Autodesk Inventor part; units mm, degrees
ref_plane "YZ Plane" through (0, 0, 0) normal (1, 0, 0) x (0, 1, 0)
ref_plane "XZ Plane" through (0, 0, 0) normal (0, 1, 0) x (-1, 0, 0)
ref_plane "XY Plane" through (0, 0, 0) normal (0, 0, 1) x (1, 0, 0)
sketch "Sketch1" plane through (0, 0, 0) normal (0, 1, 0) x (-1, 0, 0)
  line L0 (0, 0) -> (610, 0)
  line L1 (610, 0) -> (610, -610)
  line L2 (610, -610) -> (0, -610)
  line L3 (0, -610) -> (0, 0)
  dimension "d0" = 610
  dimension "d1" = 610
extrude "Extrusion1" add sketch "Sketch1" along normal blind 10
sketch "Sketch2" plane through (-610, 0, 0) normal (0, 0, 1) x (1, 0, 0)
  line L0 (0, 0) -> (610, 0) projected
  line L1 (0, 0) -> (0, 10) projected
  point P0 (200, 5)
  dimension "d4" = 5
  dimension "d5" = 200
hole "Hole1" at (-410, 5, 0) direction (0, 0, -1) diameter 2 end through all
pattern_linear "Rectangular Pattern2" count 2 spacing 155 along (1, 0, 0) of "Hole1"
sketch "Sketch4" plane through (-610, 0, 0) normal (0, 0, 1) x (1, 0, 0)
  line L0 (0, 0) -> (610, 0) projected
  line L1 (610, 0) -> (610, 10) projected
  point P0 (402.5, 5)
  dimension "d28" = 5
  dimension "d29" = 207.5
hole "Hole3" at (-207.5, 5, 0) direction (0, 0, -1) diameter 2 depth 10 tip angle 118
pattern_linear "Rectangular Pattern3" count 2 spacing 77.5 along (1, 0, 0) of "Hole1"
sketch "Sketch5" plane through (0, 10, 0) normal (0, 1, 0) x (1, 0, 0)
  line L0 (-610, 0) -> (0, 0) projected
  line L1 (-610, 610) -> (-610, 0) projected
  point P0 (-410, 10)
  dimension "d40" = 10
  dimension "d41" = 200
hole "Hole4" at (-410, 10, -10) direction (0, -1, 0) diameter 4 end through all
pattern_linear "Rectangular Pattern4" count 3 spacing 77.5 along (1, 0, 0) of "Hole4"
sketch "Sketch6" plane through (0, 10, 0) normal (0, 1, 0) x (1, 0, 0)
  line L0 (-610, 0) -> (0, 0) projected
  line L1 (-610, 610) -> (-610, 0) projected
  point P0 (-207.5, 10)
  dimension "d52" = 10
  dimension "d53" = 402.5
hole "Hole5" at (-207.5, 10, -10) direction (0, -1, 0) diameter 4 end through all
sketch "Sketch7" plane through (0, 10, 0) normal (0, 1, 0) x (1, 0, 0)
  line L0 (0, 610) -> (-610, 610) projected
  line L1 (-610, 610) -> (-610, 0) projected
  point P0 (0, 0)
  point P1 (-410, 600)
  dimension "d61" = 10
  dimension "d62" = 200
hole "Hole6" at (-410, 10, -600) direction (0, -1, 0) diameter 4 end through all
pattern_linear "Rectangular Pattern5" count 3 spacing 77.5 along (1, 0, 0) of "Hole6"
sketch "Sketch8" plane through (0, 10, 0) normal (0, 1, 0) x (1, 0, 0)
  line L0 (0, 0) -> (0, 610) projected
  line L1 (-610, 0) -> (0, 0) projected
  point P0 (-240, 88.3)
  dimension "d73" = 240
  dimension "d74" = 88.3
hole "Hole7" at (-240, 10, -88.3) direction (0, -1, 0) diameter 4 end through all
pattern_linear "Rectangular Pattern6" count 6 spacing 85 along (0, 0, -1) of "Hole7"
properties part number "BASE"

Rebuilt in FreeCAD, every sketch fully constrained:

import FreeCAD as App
import Part
import Sketcher
Q = App.Units.Quantity


def add_polygon(sketch, points):
    """Adds a closed chain of lines whose ends are joined by coincident constraints."""
    first, n = sketch.GeometryCount, len(points)
    for a, b in zip(points, points[1:] + points[:1]):
        sketch.addGeometry(Part.LineSegment(App.Vector(*a, 0), App.Vector(*b, 0)), False)
    for i in range(n):
        sketch.addConstraint(Sketcher.Constraint("Coincident", first + i, 2, first + (i + 1) % n, 1))

doc = App.newDocument("Part")
params = doc.addObject("Spreadsheet::Sheet", "Params")
for row, (alias, value) in enumerate([
    ("sketch1_width", "610 mm"),
    ("pad1_length", "10 mm"),
    ("sketch2_diameter", "2 mm"),
    ("hole_diameter", "2 mm"),
    ("linearpattern_pitch", "155 mm"),
    ("sketch3_diameter", "2 mm"),
    ("hole2_diameter", "2 mm"),
    ("hole2_depth", "10 mm"),
    ("linearpattern2_pitch", "77.5 mm"),
    ("sketch4_diameter", "4 mm"),
    ("hole3_diameter", "4 mm"),
    ("linearpattern3_pitch", "77.5 mm"),
    ("sketch5_diameter", "4 mm"),
    ("hole4_diameter", "4 mm"),
    ("sketch6_diameter", "4 mm"),
    ("hole5_diameter", "4 mm"),
    ("linearpattern4_pitch", "77.5 mm"),
    ("sketch7_diameter", "4 mm"),
    ("hole6_diameter", "4 mm"),
    ("linearpattern5_pitch", "85 mm"),
], start=1):
    params.set(f"A{row}", alias)
    params.set(f"B{row}", "=" + value)
    params.setAlias(f"B{row}", alias)

body = doc.addObject("PartDesign::Body", "Body")

# Sketch on XZ plane
sketch1 = body.newObject("Sketcher::SketchObject", "Sketch")
sketch1.AttachmentSupport = (doc.getObject("XZ_Plane"), [""])
sketch1.MapMode = "FlatFace"
add_polygon(sketch1, [(-610, 0), (0, 0), (0, -610), (-610, -610)])  # lines 0-3
sketch1.addConstraint([
    Sketcher.Constraint("Horizontal", 0),
    Sketcher.Constraint("Vertical", 1),
    Sketcher.Constraint("Horizontal", 2),
    Sketcher.Constraint("Vertical", 3),
    Sketcher.Constraint("Coincident", 0, 2, -1, 1),
    Sketcher.Constraint("Equal", 2, 1),
    Sketcher.Constraint("DistanceX", 0, 1, 0, 2, Q("610 mm")),
])
sketch1.setExpression("Constraints[10]", "Params.sketch1_width")
pad1 = body.newObject("PartDesign::Pad", "Pad")
pad1.Profile = sketch1
pad1.setExpression("Length", "Params.pad1_length")
pad1.Reversed = True

# Sketch on XY plane
sketch2 = body.newObject("Sketcher::SketchObject", "Sketch001")
sketch2.AttachmentSupport = (doc.getObject("XY_Plane"), [""])
sketch2.MapMode = "FlatFace"
sketch2.addGeometry(Part.Circle(App.Vector(-410, 5, 0), App.Vector(0, 0, 1), 1), False)
sketch2.addConstraint([
    Sketcher.Constraint("Diameter", 0, Q("2 mm")),
    Sketcher.Constraint("DistanceX", 0, 3, -1, 1, Q("410 mm")),
    Sketcher.Constraint("DistanceY", -1, 1, 0, 3, Q("5 mm")),
])
sketch2.setExpression("Constraints[0]", "Params.sketch2_diameter")
doc.recompute()
hole = body.newObject("PartDesign::Hole", "Hole")
hole.Profile = sketch2
hole.ThreadType = "None"
hole.setExpression("Diameter", "Params.hole_diameter")
hole.DepthType = "ThroughAll"
doc.recompute()

linearpattern = body.newObject("PartDesign::LinearPattern", "LinearPattern")
linearpattern.Originals = [hole]
linearpattern.Direction = (doc.getObject("X_Axis"), [""])
linearpattern.Mode = "offset"
linearpattern.setExpression("Offset", "Params.linearpattern_pitch")
linearpattern.Occurrences = 2
body.Tip = linearpattern

# Sketch on XY plane
sketch3 = body.newObject("Sketcher::SketchObject", "Sketch002")
sketch3.AttachmentSupport = (doc.getObject("XY_Plane"), [""])
sketch3.MapMode = "FlatFace"
sketch3.addGeometry(Part.Circle(App.Vector(-207.5, 5, 0), App.Vector(0, 0, 1), 1), False)
sketch3.addConstraint([
    Sketcher.Constraint("Diameter", 0, Q("2 mm")),
    Sketcher.Constraint("DistanceY", -1, 1, 0, 3, Q("5 mm")),
    Sketcher.Constraint("DistanceX", 0, 3, -1, 1, Q("207.5 mm")),
])
sketch3.setExpression("Constraints[0]", "Params.sketch3_diameter")
doc.recompute()
hole2 = body.newObject("PartDesign::Hole", "Hole001")
hole2.Profile = sketch3
hole2.ThreadType = "None"
hole2.setExpression("Diameter", "Params.hole2_diameter")
hole2.DepthType = "Dimension"
hole2.setExpression("Depth", "Params.hole2_depth")
hole2.DrillPoint = "Angled"
hole2.DrillPointAngle = 118
doc.recompute()

linearpattern2 = body.newObject("PartDesign::LinearPattern", "LinearPattern001")
linearpattern2.Originals = [hole]
linearpattern2.Direction = (doc.getObject("X_Axis"), [""])
linearpattern2.Mode = "offset"
linearpattern2.setExpression("Offset", "Params.linearpattern2_pitch")
linearpattern2.Occurrences = 2
body.Tip = linearpattern2

# Sketch on XZ plane
sketch4 = body.newObject("Sketcher::SketchObject", "Sketch003")
sketch4.AttachmentSupport = (doc.getObject("XZ_Plane"), [""])
sketch4.MapMode = "FlatFace"
sketch4.AttachmentOffset = App.Placement(App.Vector(0, 0, -10), App.Rotation())
sketch4.addGeometry(Part.Circle(App.Vector(-410, -10, 0), App.Vector(0, 0, 1), 2), False)
sketch4.addConstraint([
    Sketcher.Constraint("Diameter", 0, Q("4 mm")),
    Sketcher.Constraint("DistanceX", 0, 3, -1, 1, Q("410 mm")),
    Sketcher.Constraint("DistanceY", 0, 3, -1, 1, Q("10 mm")),
])
sketch4.setExpression("Constraints[0]", "Params.sketch4_diameter")
doc.recompute()
hole3 = body.newObject("PartDesign::Hole", "Hole002")
hole3.Profile = sketch4
hole3.ThreadType = "None"
hole3.setExpression("Diameter", "Params.hole3_diameter")
hole3.DepthType = "ThroughAll"
hole3.Reversed = True
doc.recompute()

linearpattern3 = body.newObject("PartDesign::LinearPattern", "LinearPattern002")
linearpattern3.Originals = [hole3]
linearpattern3.Direction = (doc.getObject("X_Axis"), [""])
linearpattern3.Mode = "offset"
linearpattern3.setExpression("Offset", "Params.linearpattern3_pitch")
linearpattern3.Occurrences = 3
body.Tip = linearpattern3

# Sketch on XZ plane
sketch5 = body.newObject("Sketcher::SketchObject", "Sketch004")
sketch5.AttachmentSupport = (doc.getObject("XZ_Plane"), [""])
sketch5.MapMode = "FlatFace"
sketch5.AttachmentOffset = App.Placement(App.Vector(0, 0, -10), App.Rotation())
sketch5.addGeometry(Part.Circle(App.Vector(-207.5, -10, 0), App.Vector(0, 0, 1), 2), False)
sketch5.addConstraint([
    Sketcher.Constraint("Diameter", 0, Q("4 mm")),
    Sketcher.Constraint("DistanceY", 0, 3, -1, 1, Q("10 mm")),
    Sketcher.Constraint("DistanceX", 0, 3, -1, 1, Q("207.5 mm")),
])
sketch5.setExpression("Constraints[0]", "Params.sketch5_diameter")
doc.recompute()
hole4 = body.newObject("PartDesign::Hole", "Hole003")
hole4.Profile = sketch5
hole4.ThreadType = "None"
hole4.setExpression("Diameter", "Params.hole4_diameter")
hole4.DepthType = "ThroughAll"
hole4.Reversed = True

# Sketch on XZ plane
sketch6 = body.newObject("Sketcher::SketchObject", "Sketch005")
sketch6.AttachmentSupport = (doc.getObject("XZ_Plane"), [""])
sketch6.MapMode = "FlatFace"
sketch6.AttachmentOffset = App.Placement(App.Vector(0, 0, -10), App.Rotation())
sketch6.addGeometry(Part.Circle(App.Vector(-410, -600, 0), App.Vector(0, 0, 1), 2), False)
sketch6.addConstraint([
    Sketcher.Constraint("Diameter", 0, Q("4 mm")),
    Sketcher.Constraint("DistanceX", 0, 3, -1, 1, Q("410 mm")),
    Sketcher.Constraint("DistanceY", 0, 3, -1, 1, Q("600 mm")),
])
sketch6.setExpression("Constraints[0]", "Params.sketch6_diameter")
doc.recompute()
hole5 = body.newObject("PartDesign::Hole", "Hole004")
hole5.Profile = sketch6
hole5.ThreadType = "None"
hole5.setExpression("Diameter", "Params.hole5_diameter")
hole5.DepthType = "ThroughAll"
hole5.Reversed = True
doc.recompute()

linearpattern4 = body.newObject("PartDesign::LinearPattern", "LinearPattern003")
linearpattern4.Originals = [hole5]
linearpattern4.Direction = (doc.getObject("X_Axis"), [""])
linearpattern4.Mode = "offset"
linearpattern4.setExpression("Offset", "Params.linearpattern4_pitch")
linearpattern4.Occurrences = 3
body.Tip = linearpattern4

# Sketch on XZ plane
sketch7 = body.newObject("Sketcher::SketchObject", "Sketch006")
sketch7.AttachmentSupport = (doc.getObject("XZ_Plane"), [""])
sketch7.MapMode = "FlatFace"
sketch7.AttachmentOffset = App.Placement(App.Vector(0, 0, -10), App.Rotation())
sketch7.addGeometry(Part.Circle(App.Vector(-240, -88.3, 0), App.Vector(0, 0, 1), 2), False)
sketch7.addConstraint([
    Sketcher.Constraint("Diameter", 0, Q("4 mm")),
    Sketcher.Constraint("DistanceX", 0, 3, -1, 1, Q("240 mm")),
    Sketcher.Constraint("DistanceY", 0, 3, -1, 1, Q("88.3 mm")),
])
sketch7.setExpression("Constraints[0]", "Params.sketch7_diameter")
doc.recompute()
hole6 = body.newObject("PartDesign::Hole", "Hole005")
hole6.Profile = sketch7
hole6.ThreadType = "None"
hole6.setExpression("Diameter", "Params.hole6_diameter")
hole6.DepthType = "ThroughAll"
hole6.Reversed = True
doc.recompute()

linearpattern5 = body.newObject("PartDesign::LinearPattern", "LinearPattern004")
linearpattern5.Originals = [hole6]
linearpattern5.Direction = (doc.getObject("Z_Axis"), [""])
linearpattern5.Mode = "offset"
linearpattern5.setExpression("Offset", "Params.linearpattern5_pitch")
linearpattern5.Occurrences = 6
linearpattern5.Reversed = True
body.Tip = linearpattern5

doc.recompute()
